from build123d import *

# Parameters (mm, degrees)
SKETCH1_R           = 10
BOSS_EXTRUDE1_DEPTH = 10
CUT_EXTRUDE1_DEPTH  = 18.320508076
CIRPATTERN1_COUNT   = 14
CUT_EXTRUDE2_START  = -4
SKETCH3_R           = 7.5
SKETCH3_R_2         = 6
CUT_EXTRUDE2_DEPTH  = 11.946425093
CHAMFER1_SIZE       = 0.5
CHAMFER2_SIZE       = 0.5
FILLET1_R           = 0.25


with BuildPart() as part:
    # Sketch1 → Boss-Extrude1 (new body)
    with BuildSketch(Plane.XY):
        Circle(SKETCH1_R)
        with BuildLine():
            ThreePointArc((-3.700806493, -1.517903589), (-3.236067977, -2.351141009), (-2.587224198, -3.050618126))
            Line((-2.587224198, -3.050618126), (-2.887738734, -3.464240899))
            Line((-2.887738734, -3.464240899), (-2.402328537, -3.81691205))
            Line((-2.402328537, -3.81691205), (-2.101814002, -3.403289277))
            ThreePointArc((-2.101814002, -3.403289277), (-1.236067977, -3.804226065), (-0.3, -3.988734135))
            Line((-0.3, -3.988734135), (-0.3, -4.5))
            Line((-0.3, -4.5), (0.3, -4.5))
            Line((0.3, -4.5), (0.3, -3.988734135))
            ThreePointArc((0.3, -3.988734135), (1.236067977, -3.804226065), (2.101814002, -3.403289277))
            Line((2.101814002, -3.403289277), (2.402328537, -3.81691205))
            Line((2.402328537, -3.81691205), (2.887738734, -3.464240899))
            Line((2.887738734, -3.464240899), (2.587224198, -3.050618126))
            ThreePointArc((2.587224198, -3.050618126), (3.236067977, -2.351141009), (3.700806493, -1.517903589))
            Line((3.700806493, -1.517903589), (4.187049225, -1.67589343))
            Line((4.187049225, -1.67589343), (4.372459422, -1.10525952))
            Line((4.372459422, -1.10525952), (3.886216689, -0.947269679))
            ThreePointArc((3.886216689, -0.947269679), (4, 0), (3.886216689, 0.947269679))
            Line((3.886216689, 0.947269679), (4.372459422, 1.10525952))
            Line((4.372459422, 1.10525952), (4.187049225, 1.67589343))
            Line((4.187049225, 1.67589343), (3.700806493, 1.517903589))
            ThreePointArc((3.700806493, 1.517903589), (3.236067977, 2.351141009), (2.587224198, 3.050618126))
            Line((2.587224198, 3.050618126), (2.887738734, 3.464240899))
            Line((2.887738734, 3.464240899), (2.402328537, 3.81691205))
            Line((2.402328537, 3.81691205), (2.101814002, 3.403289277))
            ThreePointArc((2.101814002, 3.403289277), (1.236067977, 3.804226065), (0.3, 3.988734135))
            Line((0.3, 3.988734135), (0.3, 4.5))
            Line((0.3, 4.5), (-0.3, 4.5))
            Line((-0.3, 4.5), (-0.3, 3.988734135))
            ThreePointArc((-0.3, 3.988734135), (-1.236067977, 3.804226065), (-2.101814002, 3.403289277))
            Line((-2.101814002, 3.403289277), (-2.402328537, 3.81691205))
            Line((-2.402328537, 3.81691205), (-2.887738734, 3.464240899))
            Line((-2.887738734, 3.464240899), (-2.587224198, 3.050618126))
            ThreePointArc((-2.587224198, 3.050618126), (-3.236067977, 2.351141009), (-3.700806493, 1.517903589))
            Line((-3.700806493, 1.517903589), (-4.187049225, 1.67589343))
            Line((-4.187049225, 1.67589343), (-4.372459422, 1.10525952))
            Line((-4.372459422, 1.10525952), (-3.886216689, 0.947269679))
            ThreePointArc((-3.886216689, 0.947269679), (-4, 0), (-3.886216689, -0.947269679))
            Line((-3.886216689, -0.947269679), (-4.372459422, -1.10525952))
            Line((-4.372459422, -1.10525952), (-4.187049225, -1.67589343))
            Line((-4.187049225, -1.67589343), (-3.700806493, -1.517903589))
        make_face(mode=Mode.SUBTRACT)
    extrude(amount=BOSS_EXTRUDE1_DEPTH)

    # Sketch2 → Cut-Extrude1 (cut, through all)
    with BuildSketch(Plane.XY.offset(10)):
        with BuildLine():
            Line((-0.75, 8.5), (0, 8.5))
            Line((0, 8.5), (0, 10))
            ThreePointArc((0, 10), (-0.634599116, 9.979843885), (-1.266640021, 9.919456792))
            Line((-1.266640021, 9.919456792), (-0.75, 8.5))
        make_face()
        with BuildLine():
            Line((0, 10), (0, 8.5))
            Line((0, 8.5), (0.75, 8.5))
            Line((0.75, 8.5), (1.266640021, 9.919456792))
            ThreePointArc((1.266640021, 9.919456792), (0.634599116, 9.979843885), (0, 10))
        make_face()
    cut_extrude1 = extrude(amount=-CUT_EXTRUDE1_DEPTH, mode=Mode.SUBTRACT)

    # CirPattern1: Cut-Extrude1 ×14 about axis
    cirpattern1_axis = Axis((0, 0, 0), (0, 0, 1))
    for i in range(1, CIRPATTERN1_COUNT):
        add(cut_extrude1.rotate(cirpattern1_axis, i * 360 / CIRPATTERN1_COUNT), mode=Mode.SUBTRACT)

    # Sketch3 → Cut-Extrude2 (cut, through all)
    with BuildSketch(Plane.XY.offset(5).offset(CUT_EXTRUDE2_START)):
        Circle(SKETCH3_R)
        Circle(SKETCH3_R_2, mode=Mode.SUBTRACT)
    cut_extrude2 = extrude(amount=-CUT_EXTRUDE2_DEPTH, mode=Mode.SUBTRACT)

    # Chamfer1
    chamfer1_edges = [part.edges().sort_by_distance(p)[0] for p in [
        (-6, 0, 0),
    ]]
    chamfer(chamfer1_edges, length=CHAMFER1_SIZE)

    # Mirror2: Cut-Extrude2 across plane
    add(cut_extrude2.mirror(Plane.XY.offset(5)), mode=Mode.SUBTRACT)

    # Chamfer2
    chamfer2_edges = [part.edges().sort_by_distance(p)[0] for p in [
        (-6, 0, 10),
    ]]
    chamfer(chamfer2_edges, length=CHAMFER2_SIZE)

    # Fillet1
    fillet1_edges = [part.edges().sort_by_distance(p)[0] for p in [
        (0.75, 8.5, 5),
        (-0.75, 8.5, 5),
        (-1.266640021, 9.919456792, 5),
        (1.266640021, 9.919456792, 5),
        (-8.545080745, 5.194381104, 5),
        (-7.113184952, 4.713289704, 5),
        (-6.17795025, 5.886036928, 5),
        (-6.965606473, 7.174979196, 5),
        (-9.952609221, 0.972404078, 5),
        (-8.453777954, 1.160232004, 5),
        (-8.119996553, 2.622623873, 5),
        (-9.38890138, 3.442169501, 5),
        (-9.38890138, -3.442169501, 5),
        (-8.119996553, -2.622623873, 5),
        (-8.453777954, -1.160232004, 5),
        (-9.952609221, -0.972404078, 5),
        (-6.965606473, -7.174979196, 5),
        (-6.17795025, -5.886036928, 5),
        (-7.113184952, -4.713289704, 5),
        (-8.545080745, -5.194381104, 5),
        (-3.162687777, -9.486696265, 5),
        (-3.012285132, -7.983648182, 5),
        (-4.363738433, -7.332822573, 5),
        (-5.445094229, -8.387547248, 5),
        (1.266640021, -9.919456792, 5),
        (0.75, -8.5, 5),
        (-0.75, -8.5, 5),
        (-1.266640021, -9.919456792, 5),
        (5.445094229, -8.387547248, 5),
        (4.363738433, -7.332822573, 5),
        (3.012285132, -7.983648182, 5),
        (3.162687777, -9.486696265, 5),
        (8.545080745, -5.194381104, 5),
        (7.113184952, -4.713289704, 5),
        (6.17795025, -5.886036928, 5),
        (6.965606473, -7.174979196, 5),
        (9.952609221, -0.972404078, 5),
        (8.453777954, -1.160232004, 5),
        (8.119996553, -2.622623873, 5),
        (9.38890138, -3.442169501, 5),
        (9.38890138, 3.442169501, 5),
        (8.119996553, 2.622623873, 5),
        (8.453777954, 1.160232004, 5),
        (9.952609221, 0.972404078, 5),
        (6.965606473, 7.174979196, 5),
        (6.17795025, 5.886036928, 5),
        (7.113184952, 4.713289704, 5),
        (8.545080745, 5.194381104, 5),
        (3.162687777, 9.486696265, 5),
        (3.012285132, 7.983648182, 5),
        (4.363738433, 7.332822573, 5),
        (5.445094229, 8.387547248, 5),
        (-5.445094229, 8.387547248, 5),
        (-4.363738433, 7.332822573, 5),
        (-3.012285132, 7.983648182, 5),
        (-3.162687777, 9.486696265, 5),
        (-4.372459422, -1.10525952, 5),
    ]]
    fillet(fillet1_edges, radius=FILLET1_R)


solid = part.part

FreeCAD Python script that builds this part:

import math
import FreeCAD as App
import Part
import Sketcher

V = App.Vector
Q = App.Units.Quantity


def edges_at(feature, points):
    """Names of the edges that pass closest to the given points."""
    edges = feature.Shape.Edges
    near = lambda p: min(range(len(edges)), key=lambda i: edges[i].distToShape(Part.Vertex(*p))[0])
    return sorted({f"Edge{near(p) + 1}" for p in points})

doc = App.newDocument("Part")
body = doc.addObject("PartDesign::Body", "Body")

# Sketch on XY plane
sketch1 = body.newObject("Sketcher::SketchObject", "Sketch")
sketch1.AttachmentSupport = (doc.getObject("XY_Plane"), [""])
sketch1.MapMode = "FlatFace"
sketch1.addGeometry([
    Part.Circle(V(0, 0, 0), V(0, 0, 1), 10),  # 0
    Part.ArcOfCircle(Part.Circle(V(0, 0, 0), V(0, 0, 1), 4), math.radians(-157.698778), math.radians(-130.301222)),  # 1
    Part.LineSegment(V(-3.700806, -1.517904, 0), V(-4.187049, -1.675893, 0)),  # 2
    Part.LineSegment(V(-4.187049, -1.675893, 0), V(-4.372459, -1.10526, 0)),  # 3
    Part.LineSegment(V(-4.372459, -1.10526, 0), V(-3.886217, -0.94727, 0)),  # 4
    Part.ArcOfCircle(Part.Circle(V(0, 0, 0), V(0, 0, 1), 4), math.radians(166.301222), math.radians(193.698778)),  # 5
    Part.LineSegment(V(-3.886217, 0.94727, 0), V(-4.372459, 1.10526, 0)),  # 6
    Part.LineSegment(V(-4.372459, 1.10526, 0), V(-4.187049, 1.675893, 0)),  # 7
    Part.LineSegment(V(-4.187049, 1.675893, 0), V(-3.700806, 1.517904, 0)),  # 8
    Part.ArcOfCircle(Part.Circle(V(0, 0, 0), V(0, 0, 1), 4), math.radians(130.301222), math.radians(157.698778)),  # 9
    Part.LineSegment(V(-2.587224, 3.050618, 0), V(-2.887739, 3.464241, 0)),  # 10
    Part.LineSegment(V(-2.887739, 3.464241, 0), V(-2.402329, 3.816912, 0)),  # 11
    Part.LineSegment(V(-2.402329, 3.816912, 0), V(-2.101814, 3.403289, 0)),  # 12
    Part.ArcOfCircle(Part.Circle(V(0, 0, 0), V(0, 0, 1), 4), math.radians(94.301222), math.radians(121.698778)),  # 13
    Part.LineSegment(V(-0.3, 3.988734, 0), V(-0.3, 4.5, 0)),  # 14
    Part.LineSegment(V(-0.3, 4.5, 0), V(0.3, 4.5, 0)),  # 15
    Part.LineSegment(V(0.3, 4.5, 0), V(0.3, 3.988734, 0)),  # 16
    Part.ArcOfCircle(Part.Circle(V(0, 0, 0), V(0, 0, 1), 4), math.radians(58.301222), math.radians(85.698778)),  # 17
    Part.LineSegment(V(2.101814, 3.403289, 0), V(2.402329, 3.816912, 0)),  # 18
    Part.LineSegment(V(2.402329, 3.816912, 0), V(2.887739, 3.464241, 0)),  # 19
    Part.LineSegment(V(2.887739, 3.464241, 0), V(2.587224, 3.050618, 0)),  # 20
    Part.ArcOfCircle(Part.Circle(V(0, 0, 0), V(0, 0, 1), 4), math.radians(22.301222), math.radians(49.698778)),  # 21
    Part.LineSegment(V(3.700806, 1.517904, 0), V(4.187049, 1.675893, 0)),  # 22
    Part.LineSegment(V(4.187049, 1.675893, 0), V(4.372459, 1.10526, 0)),  # 23
    Part.LineSegment(V(4.372459, 1.10526, 0), V(3.886217, 0.94727, 0)),  # 24
    Part.ArcOfCircle(Part.Circle(V(0, 0, 0), V(0, 0, 1), 4), math.radians(-13.698778), math.radians(13.698778)),  # 25
    Part.LineSegment(V(3.886217, -0.94727, 0), V(4.372459, -1.10526, 0)),  # 26
    Part.LineSegment(V(4.372459, -1.10526, 0), V(4.187049, -1.675893, 0)),  # 27
    Part.LineSegment(V(4.187049, -1.675893, 0), V(3.700806, -1.517904, 0)),  # 28
    Part.ArcOfCircle(Part.Circle(V(0, 0, 0), V(0, 0, 1), 4), math.radians(-49.698778), math.radians(-22.301222)),  # 29
    Part.LineSegment(V(2.587224, -3.050618, 0), V(2.887739, -3.464241, 0)),  # 30
    Part.LineSegment(V(2.887739, -3.464241, 0), V(2.402329, -3.816912, 0)),  # 31
    Part.LineSegment(V(2.402329, -3.816912, 0), V(2.101814, -3.403289, 0)),  # 32
    Part.ArcOfCircle(Part.Circle(V(0, 0, 0), V(0, 0, 1), 4), math.radians(-85.698778), math.radians(-58.301222)),  # 33
    Part.LineSegment(V(0.3, -3.988734, 0), V(0.3, -4.5, 0)),  # 34
    Part.LineSegment(V(0.3, -4.5, 0), V(-0.3, -4.5, 0)),  # 35
    Part.LineSegment(V(-0.3, -4.5, 0), V(-0.3, -3.988734, 0)),  # 36
    Part.ArcOfCircle(Part.Circle(V(0, 0, 0), V(0, 0, 1), 4), math.radians(-121.698778), math.radians(-94.301222)),  # 37
    Part.LineSegment(V(-2.101814, -3.403289, 0), V(-2.402329, -3.816912, 0)),  # 38
    Part.LineSegment(V(-2.402329, -3.816912, 0), V(-2.887739, -3.464241, 0)),  # 39
    Part.LineSegment(V(-2.887739, -3.464241, 0), V(-2.587224, -3.050618, 0)),  # 40
], False)
sketch1.addConstraint([
    Sketcher.Constraint("Coincident", 1, 1, 2, 1),
    Sketcher.Constraint("Coincident", 2, 2, 3, 1),
    Sketcher.Constraint("Coincident", 3, 2, 4, 1),
    Sketcher.Constraint("Coincident", 4, 2, 5, 2),
    Sketcher.Constraint("Coincident", 5, 1, 6, 1),
    Sketcher.Constraint("Coincident", 6, 2, 7, 1),
    Sketcher.Constraint("Coincident", 7, 2, 8, 1),
    Sketcher.Constraint("Coincident", 8, 2, 9, 2),
    Sketcher.Constraint("Coincident", 9, 1, 10, 1),
    Sketcher.Constraint("Coincident", 10, 2, 11, 1),
    Sketcher.Constraint("Coincident", 11, 2, 12, 1),
    Sketcher.Constraint("Coincident", 12, 2, 13, 2),
    Sketcher.Constraint("Coincident", 13, 1, 14, 1),
    Sketcher.Constraint("Coincident", 14, 2, 15, 1),
    Sketcher.Constraint("Coincident", 15, 2, 16, 1),
    Sketcher.Constraint("Coincident", 16, 2, 17, 2),
    Sketcher.Constraint("Coincident", 17, 1, 18, 1),
    Sketcher.Constraint("Coincident", 18, 2, 19, 1),
    Sketcher.Constraint("Coincident", 19, 2, 20, 1),
    Sketcher.Constraint("Coincident", 20, 2, 21, 2),
    Sketcher.Constraint("Coincident", 21, 1, 22, 1),
    Sketcher.Constraint("Coincident", 22, 2, 23, 1),
    Sketcher.Constraint("Coincident", 23, 2, 24, 1),
    Sketcher.Constraint("Coincident", 24, 2, 25, 2),
    Sketcher.Constraint("Coincident", 25, 1, 26, 1),
    Sketcher.Constraint("Coincident", 26, 2, 27, 1),
    Sketcher.Constraint("Coincident", 27, 2, 28, 1),
    Sketcher.Constraint("Coincident", 28, 2, 29, 2),
    Sketcher.Constraint("Coincident", 29, 1, 30, 1),
    Sketcher.Constraint("Coincident", 30, 2, 31, 1),
    Sketcher.Constraint("Coincident", 31, 2, 32, 1),
    Sketcher.Constraint("Coincident", 32, 2, 33, 2),
    Sketcher.Constraint("Coincident", 33, 1, 34, 1),
    Sketcher.Constraint("Coincident", 34, 2, 35, 1),
    Sketcher.Constraint("Coincident", 35, 2, 36, 1),
    Sketcher.Constraint("Coincident", 36, 2, 37, 2),
    Sketcher.Constraint("Coincident", 37, 1, 38, 1),
    Sketcher.Constraint("Coincident", 38, 2, 39, 1),
    Sketcher.Constraint("Coincident", 39, 2, 40, 1),
    Sketcher.Constraint("Coincident", 40, 2, 1, 2),
    Sketcher.Constraint("Vertical", 14),
    Sketcher.Constraint("Horizontal", 15),
    Sketcher.Constraint("Vertical", 16),
    Sketcher.Constraint("Vertical", 34),
    Sketcher.Constraint("Horizontal", 35),
    Sketcher.Constraint("Vertical", 36),
    Sketcher.Constraint("Coincident", 0, 3, -1, 1),
    Sketcher.Constraint("Coincident", 1, 3, -1, 1),
    Sketcher.Constraint("Coincident", 5, 3, -1, 1),
    Sketcher.Constraint("Coincident", 9, 3, -1, 1),
    Sketcher.Constraint("Coincident", 13, 3, -1, 1),
    Sketcher.Constraint("Coincident", 17, 3, -1, 1),
    Sketcher.Constraint("Coincident", 21, 3, -1, 1),
    Sketcher.Constraint("Coincident", 25, 3, -1, 1),
    Sketcher.Constraint("Coincident", 29, 3, -1, 1),
    Sketcher.Constraint("Coincident", 33, 3, -1, 1),
    Sketcher.Constraint("Coincident", 37, 3, -1, 1),
    Sketcher.Constraint("Equal", 1, 5),
    Sketcher.Constraint("Equal", 5, 9),
    Sketcher.Constraint("Equal", 9, 13),
    Sketcher.Constraint("Equal", 13, 17),
    Sketcher.Constraint("Equal", 17, 21),
    Sketcher.Constraint("Equal", 21, 25),
    Sketcher.Constraint("Equal", 25, 29),
    Sketcher.Constraint("Equal", 29, 33),
    Sketcher.Constraint("Equal", 33, 37),
    Sketcher.Constraint("Symmetric", 2, 2, 22, 2, -1, 1),
    Sketcher.Constraint("Symmetric", 3, 2, 23, 2, -1, 1),
    Sketcher.Constraint("Symmetric", 6, 2, 26, 2, -1, 1),
    Sketcher.Constraint("Symmetric", 7, 2, 27, 2, -1, 1),
    Sketcher.Constraint("Symmetric", 10, 2, 30, 2, -1, 1),
    Sketcher.Constraint("Symmetric", 11, 2, 31, 2, -1, 1),
    Sketcher.Constraint("Symmetric", 14, 2, 34, 2, -1, 1),
    Sketcher.Constraint("Symmetric", 18, 2, 38, 2, -1, 1),
    Sketcher.Constraint("Symmetric", 19, 2, 39, 2, -1, 1),
    Sketcher.Constraint("Symmetric", 11, 2, 18, 2, -2),
    Sketcher.Constraint("Symmetric", 10, 2, 19, 2, -2),
    Sketcher.Constraint("Symmetric", 7, 2, 22, 2, -2),
    Sketcher.Constraint("Symmetric", 6, 2, 23, 2, -2),
    Sketcher.Constraint("Perpendicular", 2, 3),
    Sketcher.Constraint("Perpendicular", 3, 4),
    Sketcher.Constraint("Perpendicular", 6, 7),
    Sketcher.Constraint("Perpendicular", 7, 8),
    Sketcher.Constraint("Perpendicular", 10, 11),
    Sketcher.Constraint("Perpendicular", 11, 12),
    Sketcher.Constraint("Perpendicular", 18, 19),
    Sketcher.Constraint("Perpendicular", 19, 20),
    Sketcher.Constraint("Parallel", 4, 22),
    Sketcher.Constraint("Perpendicular", 23, 24),
    Sketcher.Constraint("Parallel", 8, 26),
    Sketcher.Constraint("Perpendicular", 27, 28),
    Sketcher.Constraint("Parallel", 12, 30),
    Sketcher.Constraint("Perpendicular", 31, 32),
    Sketcher.Constraint("Parallel", 20, 38),
    Sketcher.Constraint("Perpendicular", 39, 40),
    Sketcher.Constraint("Horizontal", 13, 1, 16, 2),
    Sketcher.Constraint("Horizontal", 33, 1, 36, 2),
    Sketcher.Constraint("Equal", 2, 4),
    Sketcher.Constraint("Equal", 8, 10),
    Sketcher.Constraint("Equal", 7, 11),
    Sketcher.Constraint("Equal", 10, 12),
    Sketcher.Constraint("Diameter", 0, Q("20 mm")),
    Sketcher.Constraint("Radius", 1, Q("4 mm")),
    Sketcher.Constraint("Angle", 2, Q("-162 deg")),
    Sketcher.Constraint("Angle", 10, Q("126 deg")),
    Sketcher.Constraint("DistanceX", 15, 1, 15, 2, Q("0.6 mm")),
    Sketcher.Constraint("Distance", 3, Q("0.6 mm")),
    Sketcher.Constraint("DistanceY", -1, 1, 14, 2, Q("4.5 mm")),
    Sketcher.Constraint("DistanceX", 2, 2, -1, 1, Q("4.187049 mm")),
])
pad1 = body.newObject("PartDesign::Pad", "Pad")
pad1.Profile = sketch1
pad1.Length = 10

# Sketch on XY plane
sketch2 = body.newObject("Sketcher::SketchObject", "Sketch001")
sketch2.AttachmentSupport = (doc.getObject("XY_Plane"), [""])
sketch2.MapMode = "FlatFace"
sketch2.AttachmentOffset = App.Placement(V(0, 0, 10), App.Rotation())
sketch2.addGeometry([
    Part.LineSegment(V(-0.75, 8.5, 0), V(0.75, 8.5, 0)),  # 0
    Part.LineSegment(V(0.75, 8.5, 0), V(1.26664, 9.919457, 0)),  # 1
    Part.ArcOfCircle(Part.Circle(V(0, 0, 0), V(0, 0, 1), 10), math.radians(82.72314), math.radians(90)),  # 2
    Part.ArcOfCircle(Part.Circle(V(0, 0, 0), V(0, 0, 1), 10), math.radians(90), math.radians(97.27686)),  # 3
    Part.LineSegment(V(-1.26664, 9.919457, 0), V(-0.75, 8.5, 0)),  # 4
], False)
sketch2.addConstraint([
    Sketcher.Constraint("Coincident", 0, 2, 1, 1),
    Sketcher.Constraint("Coincident", 1, 2, 2, 1),
    Sketcher.Constraint("Tangent", 2, 2, 3, 1),
    Sketcher.Constraint("Coincident", 3, 2, 4, 1),
    Sketcher.Constraint("Coincident", 4, 2, 0, 1),
    Sketcher.Constraint("Horizontal", 0),
    Sketcher.Constraint("Coincident", 2, 3, -1, 1),
    Sketcher.Constraint("Equal", 2, 3),
    Sketcher.Constraint("PointOnObject", 2, 2, -2),
    Sketcher.Constraint("Horizontal", 1, 2, 3, 2),
    Sketcher.Constraint("Equal", 1, 4),
    Sketcher.Constraint("Radius", 2, Q("10 mm")),
    Sketcher.Constraint("Angle", 1, Q("70 deg")),
    Sketcher.Constraint("DistanceX", 0, 1, 0, 2, Q("1.5 mm")),
    Sketcher.Constraint("DistanceY", -1, 1, 0, 2, Q("8.5 mm")),
])
pocket1 = body.newObject("PartDesign::Pocket", "Pocket")
pocket1.Profile = sketch2
pocket1.Type = "ThroughAll"
doc.recompute()

polarpattern = body.newObject("PartDesign::PolarPattern", "PolarPattern")
polarpattern.Originals = [pocket1]
polarpattern.Axis = (doc.getObject("Z_Axis"), [""])
polarpattern.Angle = 360
polarpattern.Occurrences = 14
body.Tip = polarpattern

# Sketch on XY plane
sketch3 = body.newObject("Sketcher::SketchObject", "Sketch002")
sketch3.AttachmentSupport = (doc.getObject("XY_Plane"), [""])
sketch3.MapMode = "FlatFace"
sketch3.AttachmentOffset = App.Placement(V(0, 0, 1), App.Rotation())
sketch3.addGeometry([
    Part.Circle(V(0, 0, 0), V(0, 0, 1), 7.5),
    Part.Circle(V(0, 0, 0), V(0, 0, 1), 6),
], False)
sketch3.addConstraint([
    Sketcher.Constraint("Coincident", 0, 3, -1, 1),
    Sketcher.Constraint("Coincident", 1, 3, -1, 1),
    Sketcher.Constraint("Diameter", 0, Q("15 mm")),
    Sketcher.Constraint("Diameter", 1, Q("12 mm")),
])
pocket2 = body.newObject("PartDesign::Pocket", "Pocket001")
pocket2.Profile = sketch3
pocket2.Type = "ThroughAll"
doc.recompute()

chamfer = body.newObject("PartDesign::Chamfer", "Chamfer")
chamfer.Base = (pocket2, edges_at(pocket2, [(-6, 0, 0)]))
chamfer.Size = 0.5
doc.recompute()

datumplane = body.newObject("PartDesign::Plane", "DatumPlane")
datumplane.AttachmentSupport = (doc.getObject("XY_Plane"), [""])
datumplane.MapMode = "FlatFace"
datumplane.AttachmentOffset = App.Placement(V(0, 0, 5), App.Rotation())
mirrored = body.newObject("PartDesign::Mirrored", "Mirrored")
mirrored.Originals = [pocket2]
mirrored.MirrorPlane = (datumplane, [""])
body.Tip = mirrored
doc.recompute()

chamfer2 = body.newObject("PartDesign::Chamfer", "Chamfer001")
chamfer2.Base = (mirrored, edges_at(mirrored, [(-6, 0, 10)]))
chamfer2.Size = 0.5
doc.recompute()

fillet = body.newObject("PartDesign::Fillet", "Fillet")
fillet.Base = (chamfer2, edges_at(chamfer2, [
    (0.75, 8.5, 5),
    (-0.75, 8.5, 5),
    (-1.267, 9.919, 5),
    (1.267, 9.919, 5),
    (-8.545, 5.194, 5),
    (-7.113, 4.713, 5),
    (-6.178, 5.886, 5),
    (-6.966, 7.175, 5),
    (-9.953, 0.972, 5),
    (-8.454, 1.16, 5),
    (-8.12, 2.623, 5),
    (-9.389, 3.442, 5),
    (-9.389, -3.442, 5),
    (-8.12, -2.623, 5),
    (-8.454, -1.16, 5),
    (-9.953, -0.972, 5),
    (-6.966, -7.175, 5),
    (-6.178, -5.886, 5),
    (-7.113, -4.713, 5),
    (-8.545, -5.194, 5),
    (-3.163, -9.487, 5),
    (-3.012, -7.984, 5),
    (-4.364, -7.333, 5),
    (-5.445, -8.388, 5),
    (1.267, -9.919, 5),
    (0.75, -8.5, 5),
    (-0.75, -8.5, 5),
    (-1.267, -9.919, 5),
    (5.445, -8.388, 5),
    (4.364, -7.333, 5),
    (3.012, -7.984, 5),
    (3.163, -9.487, 5),
    (8.545, -5.194, 5),
    (7.113, -4.713, 5),
    (6.178, -5.886, 5),
    (6.966, -7.175, 5),
    (9.953, -0.972, 5),
    (8.454, -1.16, 5),
    (8.12, -2.623, 5),
    (9.389, -3.442, 5),
    (9.389, 3.442, 5),
    (8.12, 2.623, 5),
    (8.454, 1.16, 5),
    (9.953, 0.972, 5),
    (6.966, 7.175, 5),
    (6.178, 5.886, 5),
    (7.113, 4.713, 5),
    (8.545, 5.194, 5),
    (3.163, 9.487, 5),
    (3.012, 7.984, 5),
    (4.364, 7.333, 5),
    (5.445, 8.388, 5),
    (-5.445, 8.388, 5),
    (-4.364, 7.333, 5),
    (-3.012, 7.984, 5),
    (-3.163, 9.487, 5),
    (-4.372, -1.105, 5),
]))
fillet.Radius = 0.25

doc.recompute()
